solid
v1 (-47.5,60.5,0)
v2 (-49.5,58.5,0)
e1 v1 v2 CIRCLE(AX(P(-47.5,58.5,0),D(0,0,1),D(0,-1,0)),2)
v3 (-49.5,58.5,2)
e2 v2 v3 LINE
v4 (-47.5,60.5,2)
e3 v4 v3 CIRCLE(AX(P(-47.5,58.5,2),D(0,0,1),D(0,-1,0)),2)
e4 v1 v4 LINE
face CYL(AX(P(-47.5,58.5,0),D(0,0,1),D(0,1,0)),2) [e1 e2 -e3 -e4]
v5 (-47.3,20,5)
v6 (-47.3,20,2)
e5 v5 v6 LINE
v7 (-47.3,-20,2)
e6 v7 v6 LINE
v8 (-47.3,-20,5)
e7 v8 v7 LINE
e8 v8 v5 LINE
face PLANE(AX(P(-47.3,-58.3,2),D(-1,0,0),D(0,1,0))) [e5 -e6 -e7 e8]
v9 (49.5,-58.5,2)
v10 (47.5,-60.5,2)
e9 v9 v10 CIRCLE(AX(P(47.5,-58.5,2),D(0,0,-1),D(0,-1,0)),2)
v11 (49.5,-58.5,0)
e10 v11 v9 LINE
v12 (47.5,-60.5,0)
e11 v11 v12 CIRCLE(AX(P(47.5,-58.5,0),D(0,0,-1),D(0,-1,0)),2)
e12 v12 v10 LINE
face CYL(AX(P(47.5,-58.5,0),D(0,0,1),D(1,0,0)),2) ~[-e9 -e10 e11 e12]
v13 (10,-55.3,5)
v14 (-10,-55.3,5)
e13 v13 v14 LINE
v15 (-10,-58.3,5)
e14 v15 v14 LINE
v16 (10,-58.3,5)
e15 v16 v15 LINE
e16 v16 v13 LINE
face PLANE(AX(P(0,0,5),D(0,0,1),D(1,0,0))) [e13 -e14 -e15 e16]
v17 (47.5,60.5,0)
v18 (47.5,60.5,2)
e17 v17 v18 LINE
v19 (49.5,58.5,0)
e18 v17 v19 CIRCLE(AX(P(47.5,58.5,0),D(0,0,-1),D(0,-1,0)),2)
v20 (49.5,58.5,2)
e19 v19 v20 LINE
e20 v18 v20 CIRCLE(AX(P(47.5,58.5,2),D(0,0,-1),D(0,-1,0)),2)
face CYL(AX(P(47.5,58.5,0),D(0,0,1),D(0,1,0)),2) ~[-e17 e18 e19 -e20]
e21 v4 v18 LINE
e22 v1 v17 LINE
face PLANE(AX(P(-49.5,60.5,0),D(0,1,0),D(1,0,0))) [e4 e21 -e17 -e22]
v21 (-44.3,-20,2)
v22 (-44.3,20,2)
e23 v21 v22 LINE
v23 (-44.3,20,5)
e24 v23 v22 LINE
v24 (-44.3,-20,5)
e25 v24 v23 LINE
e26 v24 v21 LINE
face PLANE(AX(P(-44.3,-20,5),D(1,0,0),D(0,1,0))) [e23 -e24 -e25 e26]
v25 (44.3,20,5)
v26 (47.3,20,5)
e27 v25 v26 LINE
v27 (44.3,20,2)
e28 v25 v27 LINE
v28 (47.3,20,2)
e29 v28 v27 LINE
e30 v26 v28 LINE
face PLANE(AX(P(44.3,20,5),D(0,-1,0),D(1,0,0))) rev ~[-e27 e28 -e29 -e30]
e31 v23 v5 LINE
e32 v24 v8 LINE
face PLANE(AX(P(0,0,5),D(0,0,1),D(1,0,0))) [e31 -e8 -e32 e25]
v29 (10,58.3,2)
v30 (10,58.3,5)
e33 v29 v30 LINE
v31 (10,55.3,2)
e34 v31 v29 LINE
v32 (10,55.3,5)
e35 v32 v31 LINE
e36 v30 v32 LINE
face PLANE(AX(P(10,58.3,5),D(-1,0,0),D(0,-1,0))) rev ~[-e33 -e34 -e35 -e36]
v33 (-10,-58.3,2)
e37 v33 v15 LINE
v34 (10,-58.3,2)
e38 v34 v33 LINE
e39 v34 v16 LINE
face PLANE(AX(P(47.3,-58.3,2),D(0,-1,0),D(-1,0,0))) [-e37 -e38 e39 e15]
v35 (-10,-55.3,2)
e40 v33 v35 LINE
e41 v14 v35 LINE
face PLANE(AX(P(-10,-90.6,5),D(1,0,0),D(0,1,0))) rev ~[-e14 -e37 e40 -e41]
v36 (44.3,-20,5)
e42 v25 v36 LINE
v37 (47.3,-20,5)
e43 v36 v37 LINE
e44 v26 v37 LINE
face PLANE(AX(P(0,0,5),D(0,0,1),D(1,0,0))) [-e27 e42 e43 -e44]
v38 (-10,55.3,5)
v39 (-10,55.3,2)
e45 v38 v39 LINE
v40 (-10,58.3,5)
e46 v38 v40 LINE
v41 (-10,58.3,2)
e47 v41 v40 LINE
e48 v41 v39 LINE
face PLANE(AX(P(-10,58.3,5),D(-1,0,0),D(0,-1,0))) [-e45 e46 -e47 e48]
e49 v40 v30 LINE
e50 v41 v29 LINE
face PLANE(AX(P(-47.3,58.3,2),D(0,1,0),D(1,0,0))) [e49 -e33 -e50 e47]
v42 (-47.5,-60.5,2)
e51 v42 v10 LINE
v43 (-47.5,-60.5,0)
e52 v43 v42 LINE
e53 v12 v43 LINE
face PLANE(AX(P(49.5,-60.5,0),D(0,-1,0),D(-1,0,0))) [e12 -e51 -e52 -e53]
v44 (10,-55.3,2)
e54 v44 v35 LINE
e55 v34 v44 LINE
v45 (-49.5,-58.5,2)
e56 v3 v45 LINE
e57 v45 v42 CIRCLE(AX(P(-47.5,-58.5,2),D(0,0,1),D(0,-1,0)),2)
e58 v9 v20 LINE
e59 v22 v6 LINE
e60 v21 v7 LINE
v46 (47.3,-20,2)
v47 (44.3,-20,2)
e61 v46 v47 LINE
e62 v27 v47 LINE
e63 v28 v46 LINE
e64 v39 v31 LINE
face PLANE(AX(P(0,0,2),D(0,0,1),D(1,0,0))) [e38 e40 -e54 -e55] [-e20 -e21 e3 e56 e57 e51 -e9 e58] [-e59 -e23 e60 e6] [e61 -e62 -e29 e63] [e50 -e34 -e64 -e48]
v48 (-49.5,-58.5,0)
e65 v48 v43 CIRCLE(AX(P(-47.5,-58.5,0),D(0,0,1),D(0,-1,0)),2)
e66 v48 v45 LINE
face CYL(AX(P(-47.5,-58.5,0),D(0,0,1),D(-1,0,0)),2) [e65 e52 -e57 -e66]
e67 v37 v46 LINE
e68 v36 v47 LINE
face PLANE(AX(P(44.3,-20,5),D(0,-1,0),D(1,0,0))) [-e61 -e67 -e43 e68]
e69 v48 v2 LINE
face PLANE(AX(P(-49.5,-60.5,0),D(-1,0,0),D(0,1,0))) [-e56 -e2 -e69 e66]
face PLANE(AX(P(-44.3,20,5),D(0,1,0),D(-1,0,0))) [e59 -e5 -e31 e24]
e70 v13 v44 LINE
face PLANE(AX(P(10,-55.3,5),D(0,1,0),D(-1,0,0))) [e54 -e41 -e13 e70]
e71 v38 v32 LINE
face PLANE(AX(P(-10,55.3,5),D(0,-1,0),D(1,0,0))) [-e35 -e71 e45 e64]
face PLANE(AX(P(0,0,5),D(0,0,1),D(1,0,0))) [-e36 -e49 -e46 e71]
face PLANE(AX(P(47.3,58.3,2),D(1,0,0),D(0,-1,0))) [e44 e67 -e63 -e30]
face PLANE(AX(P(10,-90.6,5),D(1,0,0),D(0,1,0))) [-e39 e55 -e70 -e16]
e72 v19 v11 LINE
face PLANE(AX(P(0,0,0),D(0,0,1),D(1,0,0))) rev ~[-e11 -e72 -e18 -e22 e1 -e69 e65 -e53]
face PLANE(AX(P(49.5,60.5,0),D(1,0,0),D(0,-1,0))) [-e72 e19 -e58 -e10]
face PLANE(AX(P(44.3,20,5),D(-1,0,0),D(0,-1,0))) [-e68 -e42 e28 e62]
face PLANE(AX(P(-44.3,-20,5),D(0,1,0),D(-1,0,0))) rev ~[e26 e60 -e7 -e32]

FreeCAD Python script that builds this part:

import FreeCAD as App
import Part
import Sketcher
Q = App.Units.Quantity


def edges_at(feature, points):
    """Names of the edges that pass closest to the given points."""
    edges = feature.Shape.Edges
    near = lambda p: min(range(len(edges)), key=lambda i: edges[i].distToShape(Part.Vertex(*p))[0])
    return sorted({f"Edge{near(p) + 1}" for p in points})

doc = App.newDocument("Part")
body = doc.addObject("PartDesign::Body", "Body")

sketch1 = body.newObject("Sketcher::SketchObject", "Sketch")
sketch1.AttachmentSupport = (doc.getObject("XY_Plane"), [""])
sketch1.MapMode = "FlatFace"
sketch1.addGeometry([
    Part.LineSegment(App.Vector(50, 60, 0), App.Vector(-50, 60, 0)),
    Part.LineSegment(App.Vector(-50, 60, 0), App.Vector(-50, -60, 0)),
    Part.LineSegment(App.Vector(-50, -60, 0), App.Vector(50, -60, 0)),
    Part.LineSegment(App.Vector(50, -60, 0), App.Vector(50, 60, 0)),
], False)
sketch1.addConstraint([
    Sketcher.Constraint("Coincident", 0, 2, 1, 1),
    Sketcher.Constraint("Coincident", 1, 2, 2, 1),
    Sketcher.Constraint("Coincident", 2, 2, 3, 1),
    Sketcher.Constraint("Coincident", 3, 2, 0, 1),
    Sketcher.Constraint("Horizontal", 0),
    Sketcher.Constraint("Vertical", 1),
    Sketcher.Constraint("Horizontal", 2),
    Sketcher.Constraint("Vertical", 3),
    Sketcher.Constraint("Symmetric", 0, 2, 2, 2, -1, 1),
    Sketcher.Constraint("DistanceX", 0, 2, 0, 1, Q("99 mm")),
    Sketcher.Constraint("DistanceY", 1, 2, 1, 1, Q("121 mm")),
])
pad1 = body.newObject("PartDesign::Pad", "Pad")
pad1.Profile = sketch1
pad1.Length = 2

sketch2 = body.newObject("Sketcher::SketchObject", "Sketch001")
sketch2.AttachmentSupport = (doc.getObject("XY_Plane"), [""])
sketch2.MapMode = "FlatFace"
sketch2.AttachmentOffset = App.Placement(App.Vector(0, 0, 2), App.Rotation())
sketch2.addGeometry([
    Part.LineSegment(App.Vector(47, 58, 0), App.Vector(-47, 58, 0)),
    Part.LineSegment(App.Vector(-47, 58, 0), App.Vector(-47, -58, 0)),
    Part.LineSegment(App.Vector(-47, -58, 0), App.Vector(47, -58, 0)),
    Part.LineSegment(App.Vector(47, -58, 0), App.Vector(47, 58, 0)),
], False)
sketch2.addConstraint([
    Sketcher.Constraint("Coincident", 0, 2, 1, 1),
    Sketcher.Constraint("Coincident", 1, 2, 2, 1),
    Sketcher.Constraint("Coincident", 2, 2, 3, 1),
    Sketcher.Constraint("Coincident", 3, 2, 0, 1),
    Sketcher.Constraint("Horizontal", 0),
    Sketcher.Constraint("Vertical", 1),
    Sketcher.Constraint("Horizontal", 2),
    Sketcher.Constraint("Vertical", 3),
    Sketcher.Constraint("Symmetric", 0, 2, 2, 2, -1, 1),
    Sketcher.Constraint("DistanceX", 0, 2, 0, 1, Q("94.6 mm")),
    Sketcher.Constraint("DistanceY", 1, 2, 1, 1, Q("116.6 mm")),
])
pad2 = body.newObject("PartDesign::Pad", "Pad001")
pad2.Profile = sketch2
pad2.Length = 3
doc.recompute()

fillet = body.newObject("PartDesign::Fillet", "Fillet")
fillet.Base = (pad2, edges_at(pad2, [
    (49.5, 60.5, 1),
    (-49.5, 60.5, 1),
    (49.5, -60.5, 1),
    (-49.5, -60.5, 1),
]))
fillet.Radius = 2

sketch3 = body.newObject("Sketcher::SketchObject", "Sketch002")
sketch3.AttachmentSupport = (doc.getObject("XY_Plane"), [""])
sketch3.MapMode = "FlatFace"
sketch3.AttachmentOffset = App.Placement(App.Vector(0, 0, 5), App.Rotation())
sketch3.addGeometry([
    Part.LineSegment(App.Vector(44, -20, 0), App.Vector(44, 20, 0)),
    Part.LineSegment(App.Vector(44, 20, 0), App.Vector(79, 20, 0)),
    Part.LineSegment(App.Vector(79, 20, 0), App.Vector(79, 91, 0)),
    Part.LineSegment(App.Vector(79, 91, 0), App.Vector(10, 91, 0)),
    Part.LineSegment(App.Vector(10, 91, 0), App.Vector(10, 55, 0)),
    Part.LineSegment(App.Vector(10, 55, 0), App.Vector(-10, 55, 0)),
    Part.LineSegment(App.Vector(-10, 55, 0), App.Vector(-10, 91, 0)),
    Part.LineSegment(App.Vector(-10, 91, 0), App.Vector(-79, 91, 0)),
    Part.LineSegment(App.Vector(-79, 91, 0), App.Vector(-79, 20, 0)),
    Part.LineSegment(App.Vector(-79, 20, 0), App.Vector(-44, 20, 0)),
    Part.LineSegment(App.Vector(-44, 20, 0), App.Vector(-44, -20, 0)),
    Part.LineSegment(App.Vector(-44, -20, 0), App.Vector(-79, -20, 0)),
    Part.LineSegment(App.Vector(-79, -20, 0), App.Vector(-79, -91, 0)),
    Part.LineSegment(App.Vector(-79, -91, 0), App.Vector(-10, -91, 0)),
    Part.LineSegment(App.Vector(-10, -91, 0), App.Vector(-10, -55, 0)),
    Part.LineSegment(App.Vector(-10, -55, 0), App.Vector(10, -55, 0)),
    Part.LineSegment(App.Vector(10, -55, 0), App.Vector(10, -91, 0)),
    Part.LineSegment(App.Vector(10, -91, 0), App.Vector(79, -91, 0)),
    Part.LineSegment(App.Vector(79, -91, 0), App.Vector(79, -20, 0)),
    Part.LineSegment(App.Vector(79, -20, 0), App.Vector(44, -20, 0)),
], False)
sketch3.addConstraint([
    Sketcher.Constraint("Coincident", 0, 2, 1, 1),
    Sketcher.Constraint("Coincident", 1, 2, 2, 1),
    Sketcher.Constraint("Coincident", 2, 2, 3, 1),
    Sketcher.Constraint("Coincident", 3, 2, 4, 1),
    Sketcher.Constraint("Coincident", 4, 2, 5, 1),
    Sketcher.Constraint("Coincident", 5, 2, 6, 1),
    Sketcher.Constraint("Coincident", 6, 2, 7, 1),
    Sketcher.Constraint("Coincident", 7, 2, 8, 1),
    Sketcher.Constraint("Coincident", 8, 2, 9, 1),
    Sketcher.Constraint("Coincident", 9, 2, 10, 1),
    Sketcher.Constraint("Coincident", 10, 2, 11, 1),
    Sketcher.Constraint("Coincident", 11, 2, 12, 1),
    Sketcher.Constraint("Coincident", 12, 2, 13, 1),
    Sketcher.Constraint("Coincident", 13, 2, 14, 1),
    Sketcher.Constraint("Coincident", 14, 2, 15, 1),
    Sketcher.Constraint("Coincident", 15, 2, 16, 1),
    Sketcher.Constraint("Coincident", 16, 2, 17, 1),
    Sketcher.Constraint("Coincident", 17, 2, 18, 1),
    Sketcher.Constraint("Coincident", 18, 2, 19, 1),
    Sketcher.Constraint("Coincident", 19, 2, 0, 1),
    Sketcher.Constraint("Vertical", 0),
    Sketcher.Constraint("Horizontal", 1),
    Sketcher.Constraint("Vertical", 2),
    Sketcher.Constraint("Horizontal", 3),
    Sketcher.Constraint("Vertical", 4),
    Sketcher.Constraint("Horizontal", 5),
    Sketcher.Constraint("Vertical", 6),
    Sketcher.Constraint("Horizontal", 7),
    Sketcher.Constraint("Vertical", 8),
    Sketcher.Constraint("Horizontal", 9),
    Sketcher.Constraint("Vertical", 10),
    Sketcher.Constraint("Horizontal", 11),
    Sketcher.Constraint("Vertical", 12),
    Sketcher.Constraint("Horizontal", 13),
    Sketcher.Constraint("Vertical", 14),
    Sketcher.Constraint("Horizontal", 15),
    Sketcher.Constraint("Vertical", 16),
    Sketcher.Constraint("Horizontal", 17),
    Sketcher.Constraint("Vertical", 18),
    Sketcher.Constraint("Horizontal", 19),
    Sketcher.Constraint("Symmetric", 0, 2, 10, 2, -1, 1),
    Sketcher.Constraint("Symmetric", 2, 2, 12, 2, -1, 1),
    Sketcher.Constraint("Symmetric", 4, 2, 14, 2, -1, 1),
    Sketcher.Constraint("Symmetric", 6, 2, 16, 2, -1, 1),
    Sketcher.Constraint("Symmetric", 8, 2, 18, 2, -1, 1),
    Sketcher.Constraint("Symmetric", 3, 2, 6, 2, -2),
    Sketcher.Constraint("Symmetric", 1, 2, 8, 2, -2),
    Sketcher.Constraint("DistanceX", 5, 2, 5, 1, Q("20 mm")),
    Sketcher.Constraint("DistanceY", 0, 1, 0, 2, Q("40 mm")),
    Sketcher.Constraint("DistanceX", 1, 1, 1, 2, Q("34.3 mm")),
    Sketcher.Constraint("DistanceX", 3, 2, 3, 1, Q("68.6 mm")),
    Sketcher.Constraint("DistanceY", 2, 1, 2, 2, Q("70.6 mm")),
    Sketcher.Constraint("DistanceY", 4, 2, 4, 1, Q("35.3 mm")),
])
pocket1 = body.newObject("PartDesign::Pocket", "Pocket")
pocket1.Profile = sketch3
pocket1.Length = 3

doc.recompute()
